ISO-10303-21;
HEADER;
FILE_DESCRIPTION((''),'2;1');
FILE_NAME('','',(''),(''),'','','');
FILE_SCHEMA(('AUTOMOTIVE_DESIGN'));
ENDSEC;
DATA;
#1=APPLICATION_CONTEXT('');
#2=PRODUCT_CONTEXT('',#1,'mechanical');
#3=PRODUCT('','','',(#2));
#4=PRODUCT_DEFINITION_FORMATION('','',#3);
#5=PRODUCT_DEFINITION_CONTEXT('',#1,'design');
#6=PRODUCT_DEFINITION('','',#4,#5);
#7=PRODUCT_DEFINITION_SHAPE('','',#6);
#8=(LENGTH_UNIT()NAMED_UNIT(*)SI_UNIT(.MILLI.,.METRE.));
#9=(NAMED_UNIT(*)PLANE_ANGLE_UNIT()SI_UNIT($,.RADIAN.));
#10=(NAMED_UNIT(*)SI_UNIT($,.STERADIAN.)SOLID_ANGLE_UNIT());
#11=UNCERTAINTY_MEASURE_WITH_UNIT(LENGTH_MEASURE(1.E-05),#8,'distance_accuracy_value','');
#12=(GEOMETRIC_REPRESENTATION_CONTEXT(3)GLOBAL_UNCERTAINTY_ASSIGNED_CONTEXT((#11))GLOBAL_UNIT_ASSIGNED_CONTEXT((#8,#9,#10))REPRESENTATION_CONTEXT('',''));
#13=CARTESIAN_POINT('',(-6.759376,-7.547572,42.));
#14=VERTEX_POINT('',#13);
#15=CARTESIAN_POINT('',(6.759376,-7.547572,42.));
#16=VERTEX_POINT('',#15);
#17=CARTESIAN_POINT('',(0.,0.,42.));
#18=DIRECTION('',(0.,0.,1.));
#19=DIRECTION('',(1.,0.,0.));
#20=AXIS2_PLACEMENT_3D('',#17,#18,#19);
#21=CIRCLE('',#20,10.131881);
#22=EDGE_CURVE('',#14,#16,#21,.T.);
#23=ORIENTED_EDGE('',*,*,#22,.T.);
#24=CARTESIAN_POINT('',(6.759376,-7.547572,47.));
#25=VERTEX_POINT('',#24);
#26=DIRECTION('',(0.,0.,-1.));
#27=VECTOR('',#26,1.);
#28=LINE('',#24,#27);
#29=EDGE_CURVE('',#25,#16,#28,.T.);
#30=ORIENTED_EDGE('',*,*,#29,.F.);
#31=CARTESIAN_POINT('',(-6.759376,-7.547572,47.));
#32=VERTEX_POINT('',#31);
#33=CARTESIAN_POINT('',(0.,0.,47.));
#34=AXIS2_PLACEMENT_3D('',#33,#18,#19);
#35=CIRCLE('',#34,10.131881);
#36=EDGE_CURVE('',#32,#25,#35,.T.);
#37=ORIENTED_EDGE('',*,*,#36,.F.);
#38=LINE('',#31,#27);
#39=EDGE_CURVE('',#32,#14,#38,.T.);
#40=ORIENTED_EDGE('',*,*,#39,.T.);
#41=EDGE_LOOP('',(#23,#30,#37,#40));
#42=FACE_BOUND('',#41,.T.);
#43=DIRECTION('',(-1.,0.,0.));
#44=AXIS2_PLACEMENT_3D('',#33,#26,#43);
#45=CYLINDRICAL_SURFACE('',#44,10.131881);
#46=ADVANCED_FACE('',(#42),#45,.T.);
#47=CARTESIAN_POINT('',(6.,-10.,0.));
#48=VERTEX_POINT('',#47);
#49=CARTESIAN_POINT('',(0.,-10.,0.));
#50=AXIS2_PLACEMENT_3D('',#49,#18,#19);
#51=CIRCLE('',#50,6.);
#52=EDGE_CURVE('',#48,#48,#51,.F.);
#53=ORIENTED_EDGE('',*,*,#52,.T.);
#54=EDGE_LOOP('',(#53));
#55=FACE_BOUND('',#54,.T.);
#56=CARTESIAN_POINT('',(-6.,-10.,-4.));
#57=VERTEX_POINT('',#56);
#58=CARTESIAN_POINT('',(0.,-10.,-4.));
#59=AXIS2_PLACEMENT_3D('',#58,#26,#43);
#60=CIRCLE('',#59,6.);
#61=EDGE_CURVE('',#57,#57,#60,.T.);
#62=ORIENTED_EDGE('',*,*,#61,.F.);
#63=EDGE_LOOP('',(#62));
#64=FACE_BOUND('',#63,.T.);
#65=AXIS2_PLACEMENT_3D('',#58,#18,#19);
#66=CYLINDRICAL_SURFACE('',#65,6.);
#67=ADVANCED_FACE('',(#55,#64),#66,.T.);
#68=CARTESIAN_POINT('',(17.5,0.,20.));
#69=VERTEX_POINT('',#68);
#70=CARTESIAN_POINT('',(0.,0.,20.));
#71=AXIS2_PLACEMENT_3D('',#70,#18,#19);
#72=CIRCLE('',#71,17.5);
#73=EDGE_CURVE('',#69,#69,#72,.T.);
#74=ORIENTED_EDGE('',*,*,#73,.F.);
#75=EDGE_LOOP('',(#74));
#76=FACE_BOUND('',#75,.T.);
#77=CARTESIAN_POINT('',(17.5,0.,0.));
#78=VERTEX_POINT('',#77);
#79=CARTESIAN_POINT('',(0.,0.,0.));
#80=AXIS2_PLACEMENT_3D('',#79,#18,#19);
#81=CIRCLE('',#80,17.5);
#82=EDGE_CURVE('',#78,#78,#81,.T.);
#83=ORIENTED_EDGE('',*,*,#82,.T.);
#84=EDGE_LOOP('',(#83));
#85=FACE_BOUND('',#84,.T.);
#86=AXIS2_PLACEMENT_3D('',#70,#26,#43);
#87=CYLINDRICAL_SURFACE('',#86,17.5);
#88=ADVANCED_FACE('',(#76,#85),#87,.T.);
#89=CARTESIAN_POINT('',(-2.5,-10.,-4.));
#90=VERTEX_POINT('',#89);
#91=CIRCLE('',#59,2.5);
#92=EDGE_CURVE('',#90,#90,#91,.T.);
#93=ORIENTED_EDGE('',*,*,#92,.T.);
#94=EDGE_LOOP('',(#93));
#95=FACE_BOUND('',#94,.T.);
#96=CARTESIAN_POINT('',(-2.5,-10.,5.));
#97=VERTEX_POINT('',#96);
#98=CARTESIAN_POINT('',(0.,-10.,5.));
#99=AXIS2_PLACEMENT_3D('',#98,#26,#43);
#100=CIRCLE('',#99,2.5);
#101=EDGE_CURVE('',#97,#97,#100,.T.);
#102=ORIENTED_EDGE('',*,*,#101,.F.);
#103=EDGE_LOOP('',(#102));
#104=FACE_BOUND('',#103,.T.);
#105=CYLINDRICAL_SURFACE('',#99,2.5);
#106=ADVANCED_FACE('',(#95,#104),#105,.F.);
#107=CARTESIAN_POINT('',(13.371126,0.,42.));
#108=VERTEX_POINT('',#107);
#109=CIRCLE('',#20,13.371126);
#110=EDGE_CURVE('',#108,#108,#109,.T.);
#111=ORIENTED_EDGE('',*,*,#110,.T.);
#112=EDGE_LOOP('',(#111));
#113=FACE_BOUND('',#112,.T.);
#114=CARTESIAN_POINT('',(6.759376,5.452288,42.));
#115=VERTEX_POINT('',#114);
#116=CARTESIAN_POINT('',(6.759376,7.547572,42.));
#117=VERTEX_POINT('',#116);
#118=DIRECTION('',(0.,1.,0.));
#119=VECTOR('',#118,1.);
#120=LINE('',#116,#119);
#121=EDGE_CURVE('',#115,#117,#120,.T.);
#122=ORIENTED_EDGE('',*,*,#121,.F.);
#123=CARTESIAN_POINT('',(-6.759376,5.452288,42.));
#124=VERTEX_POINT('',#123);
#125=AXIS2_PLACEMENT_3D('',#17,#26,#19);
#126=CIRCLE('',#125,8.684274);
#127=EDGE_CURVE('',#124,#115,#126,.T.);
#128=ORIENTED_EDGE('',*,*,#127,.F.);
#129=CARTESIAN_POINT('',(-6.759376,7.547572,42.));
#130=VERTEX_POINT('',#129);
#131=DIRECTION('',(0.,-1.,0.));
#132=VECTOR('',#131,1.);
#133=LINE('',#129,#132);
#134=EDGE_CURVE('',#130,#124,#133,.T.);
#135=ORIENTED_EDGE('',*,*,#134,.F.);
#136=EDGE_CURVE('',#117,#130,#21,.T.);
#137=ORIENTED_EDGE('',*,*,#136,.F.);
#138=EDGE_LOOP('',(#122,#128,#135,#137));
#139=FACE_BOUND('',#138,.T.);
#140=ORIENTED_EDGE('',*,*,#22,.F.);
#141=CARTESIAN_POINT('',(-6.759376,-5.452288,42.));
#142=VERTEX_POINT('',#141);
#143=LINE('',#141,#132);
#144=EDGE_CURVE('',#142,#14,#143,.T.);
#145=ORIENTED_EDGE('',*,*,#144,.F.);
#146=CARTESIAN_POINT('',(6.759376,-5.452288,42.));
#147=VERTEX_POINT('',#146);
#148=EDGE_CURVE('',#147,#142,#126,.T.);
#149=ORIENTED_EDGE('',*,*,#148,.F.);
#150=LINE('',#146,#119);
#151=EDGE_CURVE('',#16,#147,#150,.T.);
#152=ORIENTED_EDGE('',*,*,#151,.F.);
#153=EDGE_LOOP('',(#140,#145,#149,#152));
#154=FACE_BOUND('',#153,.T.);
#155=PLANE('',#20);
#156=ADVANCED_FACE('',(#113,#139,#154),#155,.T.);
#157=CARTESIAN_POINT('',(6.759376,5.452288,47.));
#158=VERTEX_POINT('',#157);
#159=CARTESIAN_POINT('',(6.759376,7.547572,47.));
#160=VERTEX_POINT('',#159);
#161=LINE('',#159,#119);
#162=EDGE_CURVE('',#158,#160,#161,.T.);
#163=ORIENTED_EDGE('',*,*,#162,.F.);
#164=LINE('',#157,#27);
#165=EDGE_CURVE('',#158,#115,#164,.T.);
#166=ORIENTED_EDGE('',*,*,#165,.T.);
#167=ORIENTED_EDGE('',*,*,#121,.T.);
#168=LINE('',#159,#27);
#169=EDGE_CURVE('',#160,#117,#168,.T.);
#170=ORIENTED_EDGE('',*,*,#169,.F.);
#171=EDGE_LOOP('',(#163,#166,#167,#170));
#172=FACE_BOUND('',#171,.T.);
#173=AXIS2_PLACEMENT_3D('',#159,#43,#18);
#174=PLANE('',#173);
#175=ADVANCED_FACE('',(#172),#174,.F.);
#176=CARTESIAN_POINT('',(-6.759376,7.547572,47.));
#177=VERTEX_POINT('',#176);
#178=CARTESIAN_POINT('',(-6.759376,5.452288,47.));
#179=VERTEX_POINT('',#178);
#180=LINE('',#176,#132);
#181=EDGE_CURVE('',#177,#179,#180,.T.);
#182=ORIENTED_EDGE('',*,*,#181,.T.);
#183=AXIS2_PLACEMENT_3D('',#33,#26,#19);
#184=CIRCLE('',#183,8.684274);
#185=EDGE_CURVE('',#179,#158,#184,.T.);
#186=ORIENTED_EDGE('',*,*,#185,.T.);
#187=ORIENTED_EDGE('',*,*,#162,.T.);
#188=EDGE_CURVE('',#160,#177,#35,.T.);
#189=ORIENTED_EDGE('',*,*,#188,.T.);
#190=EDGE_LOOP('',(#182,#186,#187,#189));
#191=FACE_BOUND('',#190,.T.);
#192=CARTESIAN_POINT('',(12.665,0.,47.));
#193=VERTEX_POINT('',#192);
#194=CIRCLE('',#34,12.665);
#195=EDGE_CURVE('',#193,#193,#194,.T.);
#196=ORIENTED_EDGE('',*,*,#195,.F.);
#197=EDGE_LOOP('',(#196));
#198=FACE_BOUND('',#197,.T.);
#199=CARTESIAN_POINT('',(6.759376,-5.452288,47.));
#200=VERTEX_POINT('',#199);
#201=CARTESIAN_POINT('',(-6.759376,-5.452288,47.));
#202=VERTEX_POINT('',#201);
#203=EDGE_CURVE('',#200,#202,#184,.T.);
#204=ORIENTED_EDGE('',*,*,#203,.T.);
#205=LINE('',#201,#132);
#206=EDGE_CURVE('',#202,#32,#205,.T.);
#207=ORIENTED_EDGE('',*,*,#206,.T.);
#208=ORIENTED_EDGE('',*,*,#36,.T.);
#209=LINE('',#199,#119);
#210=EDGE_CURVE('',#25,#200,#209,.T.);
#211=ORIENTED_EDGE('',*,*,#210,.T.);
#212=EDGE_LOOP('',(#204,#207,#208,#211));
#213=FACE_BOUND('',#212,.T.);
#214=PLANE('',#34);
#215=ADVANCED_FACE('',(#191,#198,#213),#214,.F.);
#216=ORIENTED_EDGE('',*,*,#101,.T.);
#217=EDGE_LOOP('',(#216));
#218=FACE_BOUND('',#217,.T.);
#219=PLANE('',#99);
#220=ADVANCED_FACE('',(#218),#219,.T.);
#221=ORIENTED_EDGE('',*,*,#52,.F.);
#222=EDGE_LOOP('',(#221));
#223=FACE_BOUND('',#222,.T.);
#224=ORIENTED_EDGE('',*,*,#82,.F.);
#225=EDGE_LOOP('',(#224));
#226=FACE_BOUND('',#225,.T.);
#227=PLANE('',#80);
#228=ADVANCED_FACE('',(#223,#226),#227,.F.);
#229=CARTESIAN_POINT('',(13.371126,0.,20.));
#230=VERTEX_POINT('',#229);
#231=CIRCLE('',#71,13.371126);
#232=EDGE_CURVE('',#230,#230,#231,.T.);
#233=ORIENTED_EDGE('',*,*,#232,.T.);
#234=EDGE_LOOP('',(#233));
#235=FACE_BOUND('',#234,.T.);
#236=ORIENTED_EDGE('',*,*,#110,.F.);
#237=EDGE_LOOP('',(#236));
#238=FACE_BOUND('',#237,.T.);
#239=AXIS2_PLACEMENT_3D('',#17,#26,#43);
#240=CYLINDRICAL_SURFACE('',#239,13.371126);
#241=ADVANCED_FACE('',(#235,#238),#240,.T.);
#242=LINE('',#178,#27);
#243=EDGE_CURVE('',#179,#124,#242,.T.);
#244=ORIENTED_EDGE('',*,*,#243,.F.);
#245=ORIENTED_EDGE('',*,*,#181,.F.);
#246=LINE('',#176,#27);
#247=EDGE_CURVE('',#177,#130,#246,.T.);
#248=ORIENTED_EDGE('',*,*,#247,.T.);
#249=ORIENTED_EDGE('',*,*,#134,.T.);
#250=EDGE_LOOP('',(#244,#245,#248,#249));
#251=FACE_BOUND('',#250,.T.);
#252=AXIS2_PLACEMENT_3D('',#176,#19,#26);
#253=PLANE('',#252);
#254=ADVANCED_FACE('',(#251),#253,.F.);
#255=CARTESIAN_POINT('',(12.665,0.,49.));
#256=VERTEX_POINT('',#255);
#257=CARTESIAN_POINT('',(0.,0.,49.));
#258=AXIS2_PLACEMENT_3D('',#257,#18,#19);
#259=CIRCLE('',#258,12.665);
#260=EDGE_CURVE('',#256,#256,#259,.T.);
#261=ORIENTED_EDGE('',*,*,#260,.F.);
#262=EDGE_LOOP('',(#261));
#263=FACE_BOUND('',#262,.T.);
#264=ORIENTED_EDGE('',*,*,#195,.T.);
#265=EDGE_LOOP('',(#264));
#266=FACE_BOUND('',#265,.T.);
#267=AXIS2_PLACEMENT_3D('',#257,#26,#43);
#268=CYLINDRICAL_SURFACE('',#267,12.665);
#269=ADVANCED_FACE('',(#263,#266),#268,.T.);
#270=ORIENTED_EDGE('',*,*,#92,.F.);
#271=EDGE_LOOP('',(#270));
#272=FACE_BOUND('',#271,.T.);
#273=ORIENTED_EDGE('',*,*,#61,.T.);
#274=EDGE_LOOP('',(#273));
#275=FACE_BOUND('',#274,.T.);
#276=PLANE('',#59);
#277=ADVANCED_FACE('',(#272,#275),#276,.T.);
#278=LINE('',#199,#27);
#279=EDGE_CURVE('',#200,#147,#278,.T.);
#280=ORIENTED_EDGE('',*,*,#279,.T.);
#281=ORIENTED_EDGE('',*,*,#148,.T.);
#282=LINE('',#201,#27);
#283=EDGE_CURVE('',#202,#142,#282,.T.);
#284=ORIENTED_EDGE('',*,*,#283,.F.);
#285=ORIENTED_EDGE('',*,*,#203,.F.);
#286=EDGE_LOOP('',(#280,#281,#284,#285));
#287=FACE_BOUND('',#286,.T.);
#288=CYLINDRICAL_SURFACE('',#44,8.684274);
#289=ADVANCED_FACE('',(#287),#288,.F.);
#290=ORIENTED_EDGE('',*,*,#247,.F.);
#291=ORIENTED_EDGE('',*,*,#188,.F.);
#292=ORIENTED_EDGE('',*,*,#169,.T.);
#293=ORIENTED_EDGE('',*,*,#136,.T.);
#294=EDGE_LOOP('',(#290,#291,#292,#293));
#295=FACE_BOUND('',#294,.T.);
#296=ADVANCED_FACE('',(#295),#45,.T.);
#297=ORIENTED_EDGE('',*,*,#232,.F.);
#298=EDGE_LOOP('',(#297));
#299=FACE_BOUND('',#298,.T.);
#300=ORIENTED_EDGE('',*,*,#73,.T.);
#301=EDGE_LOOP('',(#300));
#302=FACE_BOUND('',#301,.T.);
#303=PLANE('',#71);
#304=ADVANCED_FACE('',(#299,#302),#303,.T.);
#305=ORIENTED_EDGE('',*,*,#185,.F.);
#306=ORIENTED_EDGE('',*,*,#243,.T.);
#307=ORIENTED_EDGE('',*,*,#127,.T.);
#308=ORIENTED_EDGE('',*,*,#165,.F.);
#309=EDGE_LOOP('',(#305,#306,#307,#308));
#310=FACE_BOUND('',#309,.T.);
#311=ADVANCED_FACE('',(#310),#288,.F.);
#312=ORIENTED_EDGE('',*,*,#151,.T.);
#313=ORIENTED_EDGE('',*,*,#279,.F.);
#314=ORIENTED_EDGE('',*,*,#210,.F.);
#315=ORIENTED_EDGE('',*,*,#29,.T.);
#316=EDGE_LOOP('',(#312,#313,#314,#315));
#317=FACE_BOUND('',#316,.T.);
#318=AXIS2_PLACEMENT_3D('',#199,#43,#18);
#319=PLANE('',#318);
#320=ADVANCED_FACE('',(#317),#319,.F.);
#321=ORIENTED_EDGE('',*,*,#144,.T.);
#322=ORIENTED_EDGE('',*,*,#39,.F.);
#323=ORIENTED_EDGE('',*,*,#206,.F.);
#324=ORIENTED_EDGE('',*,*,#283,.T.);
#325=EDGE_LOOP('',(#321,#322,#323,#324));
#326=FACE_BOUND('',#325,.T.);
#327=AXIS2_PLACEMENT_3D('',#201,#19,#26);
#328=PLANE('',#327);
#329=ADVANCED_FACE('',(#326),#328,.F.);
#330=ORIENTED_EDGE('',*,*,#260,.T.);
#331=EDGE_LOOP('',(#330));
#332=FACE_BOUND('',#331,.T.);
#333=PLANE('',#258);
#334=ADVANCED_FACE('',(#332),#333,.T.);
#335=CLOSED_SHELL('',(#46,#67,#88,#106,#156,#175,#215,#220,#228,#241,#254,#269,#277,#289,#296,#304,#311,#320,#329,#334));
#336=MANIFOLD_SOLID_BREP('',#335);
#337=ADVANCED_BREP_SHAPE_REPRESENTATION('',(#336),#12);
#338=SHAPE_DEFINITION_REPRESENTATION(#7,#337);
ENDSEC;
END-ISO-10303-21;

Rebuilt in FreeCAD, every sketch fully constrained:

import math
import FreeCAD as App
import Part
import Sketcher
from FreeCAD import Vector
Q = App.Units.Quantity

doc = App.newDocument("Part")
body = doc.addObject("PartDesign::Body", "Body")

# Sketch on XY plane
sketch1 = body.newObject("Sketcher::SketchObject", "Sketch")
sketch1.AttachmentSupport = (doc.getObject("XY_Plane"), [""])
sketch1.MapMode = "FlatFace"
sketch1.addGeometry(Part.Circle(Vector(0, 0, 0), Vector(0, 0, 1), 18), False)
sketch1.addConstraint([
    Sketcher.Constraint("Coincident", 0, 3, -1, 1),
    Sketcher.Constraint("Diameter", 0, Q("35 mm")),
])
pad1 = body.newObject("PartDesign::Pad", "Pad")
pad1.Profile = sketch1
pad1.Length = 20

# Sketch on XY plane
sketch2 = body.newObject("Sketcher::SketchObject", "Sketch001")
sketch2.AttachmentSupport = (doc.getObject("XY_Plane"), [""])
sketch2.MapMode = "FlatFace"
sketch2.AttachmentOffset = App.Placement(Vector(0, 0, 20), App.Rotation())
sketch2.addGeometry(Part.Circle(Vector(0, 0, 0), Vector(0, 0, 1), 13), False)
sketch2.addConstraint([
    Sketcher.Constraint("Coincident", 0, 3, -1, 1),
    Sketcher.Constraint("Diameter", 0, Q("26.742253 mm")),
])
pad2 = body.newObject("PartDesign::Pad", "Pad001")
pad2.Profile = sketch2
pad2.Length = 22

# Sketch on XY plane
sketch3 = body.newObject("Sketcher::SketchObject", "Sketch002")
sketch3.AttachmentSupport = (doc.getObject("XY_Plane"), [""])
sketch3.MapMode = "FlatFace"
sketch3.AttachmentOffset = App.Placement(Vector(0, 0, 42), App.Rotation())
sketch3.addGeometry([
    Part.LineSegment(Vector(-6.8, 7.5, 0), Vector(-6.8, 5.5, 0)),  # 0
    Part.ArcOfCircle(Part.Circle(Vector(0, 0, 0), Vector(0, 0, 1), 8.7), math.radians(39), math.radians(141)),  # 1
    Part.LineSegment(Vector(6.8, 5.5, 0), Vector(6.8, 7.5, 0)),  # 2
    Part.ArcOfCircle(Part.Circle(Vector(0, 0, 0), Vector(0, 0, 1), 10.1), math.radians(48), math.radians(132)),  # 3
    Part.LineSegment(Vector(-6.8, -5.5, 0), Vector(-6.8, -7.5, 0)),  # 4
    Part.ArcOfCircle(Part.Circle(Vector(0, 0, 0), Vector(0, 0, 1), 10.1), math.radians(-132), math.radians(-48)),  # 5
    Part.LineSegment(Vector(6.8, -7.5, 0), Vector(6.8, -5.5, 0)),  # 6
    Part.ArcOfCircle(Part.Circle(Vector(0, 0, 0), Vector(0, 0, 1), 8.7), math.radians(-141), math.radians(-39)),  # 7
], False)
sketch3.addConstraint([
    Sketcher.Constraint("Coincident", 0, 2, 1, 2),
    Sketcher.Constraint("Coincident", 1, 1, 2, 1),
    Sketcher.Constraint("Coincident", 2, 2, 3, 1),
    Sketcher.Constraint("Coincident", 3, 2, 0, 1),
    Sketcher.Constraint("Coincident", 4, 2, 5, 1),
    Sketcher.Constraint("Coincident", 5, 2, 6, 1),
    Sketcher.Constraint("Coincident", 6, 2, 7, 2),
    Sketcher.Constraint("Coincident", 7, 1, 4, 1),
    Sketcher.Constraint("Vertical", 0),
    Sketcher.Constraint("Vertical", 2),
    Sketcher.Constraint("Vertical", 4),
    Sketcher.Constraint("Vertical", 6),
    Sketcher.Constraint("Coincident", 1, 3, -1, 1),
    Sketcher.Constraint("Coincident", 3, 3, -1, 1),
    Sketcher.Constraint("Coincident", 5, 3, -1, 1),
    Sketcher.Constraint("Coincident", 7, 3, -1, 1),
    Sketcher.Constraint("Equal", 3, 5),
    Sketcher.Constraint("Equal", 1, 7),
    Sketcher.Constraint("Horizontal", 0, 2, 1, 1),
    Sketcher.Constraint("Horizontal", 4, 2, 5, 2),
    Sketcher.Constraint("Vertical", 3, 2, 4, 2),
    Sketcher.Constraint("Radius", 3, Q("10.131881 mm")),
    Sketcher.Constraint("Radius", 1, Q("8.684274 mm")),
    Sketcher.Constraint("DistanceY", 0, 2, 0, 1, Q("2.095284 mm")),
])
pad3 = body.newObject("PartDesign::Pad", "Pad002")
pad3.Profile = sketch3
pad3.Length = 5

# Sketch on XY plane
sketch4 = body.newObject("Sketcher::SketchObject", "Sketch003")
sketch4.AttachmentSupport = (doc.getObject("XY_Plane"), [""])
sketch4.MapMode = "FlatFace"
sketch4.AttachmentOffset = App.Placement(Vector(0, 0, 47), App.Rotation())
sketch4.addGeometry(Part.Circle(Vector(0, 0, 0), Vector(0, 0, 1), 13), False)
sketch4.addConstraint([
    Sketcher.Constraint("Coincident", 0, 3, -1, 1),
    Sketcher.Constraint("Diameter", 0, Q("25.33 mm")),
])
pad4 = body.newObject("PartDesign::Pad", "Pad003")
pad4.Profile = sketch4
pad4.Length = 2

# Sketch on XY plane
sketch5 = body.newObject("Sketcher::SketchObject", "Sketch004")
sketch5.AttachmentSupport = (doc.getObject("XY_Plane"), [""])
sketch5.MapMode = "FlatFace"
sketch5.addGeometry(Part.Circle(Vector(0, -10, 0), Vector(0, 0, 1), 2.5), False)
sketch5.addConstraint([
    Sketcher.Constraint("PointOnObject", 0, 3, -2),
    Sketcher.Constraint("Diameter", 0, Q("5 mm")),
    Sketcher.Constraint("DistanceY", 0, 3, -1, 1, Q("10 mm")),
])
pad5 = body.newObject("PartDesign::Pad", "Pad004")
pad5.Profile = sketch5
pad5.Length = 20
pad5.Reversed = True

# Sketch on XY plane
sketch6 = body.newObject("Sketcher::SketchObject", "Sketch005")
sketch6.AttachmentSupport = (doc.getObject("XY_Plane"), [""])
sketch6.MapMode = "FlatFace"
sketch6.addGeometry([
    Part.Circle(Vector(0, -10, 0), Vector(0, 0, 1), 6),
    Part.Circle(Vector(0, -10, 0), Vector(0, 0, 1), 2.5),
], False)
sketch6.addConstraint([
    Sketcher.Constraint("Coincident", 1, 3, 0, 3),
    Sketcher.Constraint("PointOnObject", 0, 3, -2),
    Sketcher.Constraint("Diameter", 0, Q("12 mm")),
    Sketcher.Constraint("Diameter", 1, Q("5 mm")),
    Sketcher.Constraint("DistanceY", 0, 3, -1, 1, Q("10 mm")),
])
pad6 = body.newObject("PartDesign::Pad", "Pad005")
pad6.Profile = sketch6
pad6.Length = 4
pad6.Reversed = True

# Sketch on XY plane
sketch7 = body.newObject("Sketcher::SketchObject", "Sketch006")
sketch7.AttachmentSupport = (doc.getObject("XY_Plane"), [""])
sketch7.MapMode = "FlatFace"
sketch7.AttachmentOffset = App.Placement(Vector(0, 0, 5), App.Rotation())
sketch7.addGeometry(Part.Circle(Vector(0, -10, 0), Vector(0, 0, 1), 2.5), False)
sketch7.addConstraint([
    Sketcher.Constraint("PointOnObject", 0, 3, -2),
    Sketcher.Constraint("Diameter", 0, Q("5 mm")),
    Sketcher.Constraint("DistanceY", 0, 3, -1, 1, Q("10 mm")),
])
pocket1 = body.newObject("PartDesign::Pocket", "Pocket")
pocket1.Profile = sketch7
pocket1.Length = 25

doc.recompute()
